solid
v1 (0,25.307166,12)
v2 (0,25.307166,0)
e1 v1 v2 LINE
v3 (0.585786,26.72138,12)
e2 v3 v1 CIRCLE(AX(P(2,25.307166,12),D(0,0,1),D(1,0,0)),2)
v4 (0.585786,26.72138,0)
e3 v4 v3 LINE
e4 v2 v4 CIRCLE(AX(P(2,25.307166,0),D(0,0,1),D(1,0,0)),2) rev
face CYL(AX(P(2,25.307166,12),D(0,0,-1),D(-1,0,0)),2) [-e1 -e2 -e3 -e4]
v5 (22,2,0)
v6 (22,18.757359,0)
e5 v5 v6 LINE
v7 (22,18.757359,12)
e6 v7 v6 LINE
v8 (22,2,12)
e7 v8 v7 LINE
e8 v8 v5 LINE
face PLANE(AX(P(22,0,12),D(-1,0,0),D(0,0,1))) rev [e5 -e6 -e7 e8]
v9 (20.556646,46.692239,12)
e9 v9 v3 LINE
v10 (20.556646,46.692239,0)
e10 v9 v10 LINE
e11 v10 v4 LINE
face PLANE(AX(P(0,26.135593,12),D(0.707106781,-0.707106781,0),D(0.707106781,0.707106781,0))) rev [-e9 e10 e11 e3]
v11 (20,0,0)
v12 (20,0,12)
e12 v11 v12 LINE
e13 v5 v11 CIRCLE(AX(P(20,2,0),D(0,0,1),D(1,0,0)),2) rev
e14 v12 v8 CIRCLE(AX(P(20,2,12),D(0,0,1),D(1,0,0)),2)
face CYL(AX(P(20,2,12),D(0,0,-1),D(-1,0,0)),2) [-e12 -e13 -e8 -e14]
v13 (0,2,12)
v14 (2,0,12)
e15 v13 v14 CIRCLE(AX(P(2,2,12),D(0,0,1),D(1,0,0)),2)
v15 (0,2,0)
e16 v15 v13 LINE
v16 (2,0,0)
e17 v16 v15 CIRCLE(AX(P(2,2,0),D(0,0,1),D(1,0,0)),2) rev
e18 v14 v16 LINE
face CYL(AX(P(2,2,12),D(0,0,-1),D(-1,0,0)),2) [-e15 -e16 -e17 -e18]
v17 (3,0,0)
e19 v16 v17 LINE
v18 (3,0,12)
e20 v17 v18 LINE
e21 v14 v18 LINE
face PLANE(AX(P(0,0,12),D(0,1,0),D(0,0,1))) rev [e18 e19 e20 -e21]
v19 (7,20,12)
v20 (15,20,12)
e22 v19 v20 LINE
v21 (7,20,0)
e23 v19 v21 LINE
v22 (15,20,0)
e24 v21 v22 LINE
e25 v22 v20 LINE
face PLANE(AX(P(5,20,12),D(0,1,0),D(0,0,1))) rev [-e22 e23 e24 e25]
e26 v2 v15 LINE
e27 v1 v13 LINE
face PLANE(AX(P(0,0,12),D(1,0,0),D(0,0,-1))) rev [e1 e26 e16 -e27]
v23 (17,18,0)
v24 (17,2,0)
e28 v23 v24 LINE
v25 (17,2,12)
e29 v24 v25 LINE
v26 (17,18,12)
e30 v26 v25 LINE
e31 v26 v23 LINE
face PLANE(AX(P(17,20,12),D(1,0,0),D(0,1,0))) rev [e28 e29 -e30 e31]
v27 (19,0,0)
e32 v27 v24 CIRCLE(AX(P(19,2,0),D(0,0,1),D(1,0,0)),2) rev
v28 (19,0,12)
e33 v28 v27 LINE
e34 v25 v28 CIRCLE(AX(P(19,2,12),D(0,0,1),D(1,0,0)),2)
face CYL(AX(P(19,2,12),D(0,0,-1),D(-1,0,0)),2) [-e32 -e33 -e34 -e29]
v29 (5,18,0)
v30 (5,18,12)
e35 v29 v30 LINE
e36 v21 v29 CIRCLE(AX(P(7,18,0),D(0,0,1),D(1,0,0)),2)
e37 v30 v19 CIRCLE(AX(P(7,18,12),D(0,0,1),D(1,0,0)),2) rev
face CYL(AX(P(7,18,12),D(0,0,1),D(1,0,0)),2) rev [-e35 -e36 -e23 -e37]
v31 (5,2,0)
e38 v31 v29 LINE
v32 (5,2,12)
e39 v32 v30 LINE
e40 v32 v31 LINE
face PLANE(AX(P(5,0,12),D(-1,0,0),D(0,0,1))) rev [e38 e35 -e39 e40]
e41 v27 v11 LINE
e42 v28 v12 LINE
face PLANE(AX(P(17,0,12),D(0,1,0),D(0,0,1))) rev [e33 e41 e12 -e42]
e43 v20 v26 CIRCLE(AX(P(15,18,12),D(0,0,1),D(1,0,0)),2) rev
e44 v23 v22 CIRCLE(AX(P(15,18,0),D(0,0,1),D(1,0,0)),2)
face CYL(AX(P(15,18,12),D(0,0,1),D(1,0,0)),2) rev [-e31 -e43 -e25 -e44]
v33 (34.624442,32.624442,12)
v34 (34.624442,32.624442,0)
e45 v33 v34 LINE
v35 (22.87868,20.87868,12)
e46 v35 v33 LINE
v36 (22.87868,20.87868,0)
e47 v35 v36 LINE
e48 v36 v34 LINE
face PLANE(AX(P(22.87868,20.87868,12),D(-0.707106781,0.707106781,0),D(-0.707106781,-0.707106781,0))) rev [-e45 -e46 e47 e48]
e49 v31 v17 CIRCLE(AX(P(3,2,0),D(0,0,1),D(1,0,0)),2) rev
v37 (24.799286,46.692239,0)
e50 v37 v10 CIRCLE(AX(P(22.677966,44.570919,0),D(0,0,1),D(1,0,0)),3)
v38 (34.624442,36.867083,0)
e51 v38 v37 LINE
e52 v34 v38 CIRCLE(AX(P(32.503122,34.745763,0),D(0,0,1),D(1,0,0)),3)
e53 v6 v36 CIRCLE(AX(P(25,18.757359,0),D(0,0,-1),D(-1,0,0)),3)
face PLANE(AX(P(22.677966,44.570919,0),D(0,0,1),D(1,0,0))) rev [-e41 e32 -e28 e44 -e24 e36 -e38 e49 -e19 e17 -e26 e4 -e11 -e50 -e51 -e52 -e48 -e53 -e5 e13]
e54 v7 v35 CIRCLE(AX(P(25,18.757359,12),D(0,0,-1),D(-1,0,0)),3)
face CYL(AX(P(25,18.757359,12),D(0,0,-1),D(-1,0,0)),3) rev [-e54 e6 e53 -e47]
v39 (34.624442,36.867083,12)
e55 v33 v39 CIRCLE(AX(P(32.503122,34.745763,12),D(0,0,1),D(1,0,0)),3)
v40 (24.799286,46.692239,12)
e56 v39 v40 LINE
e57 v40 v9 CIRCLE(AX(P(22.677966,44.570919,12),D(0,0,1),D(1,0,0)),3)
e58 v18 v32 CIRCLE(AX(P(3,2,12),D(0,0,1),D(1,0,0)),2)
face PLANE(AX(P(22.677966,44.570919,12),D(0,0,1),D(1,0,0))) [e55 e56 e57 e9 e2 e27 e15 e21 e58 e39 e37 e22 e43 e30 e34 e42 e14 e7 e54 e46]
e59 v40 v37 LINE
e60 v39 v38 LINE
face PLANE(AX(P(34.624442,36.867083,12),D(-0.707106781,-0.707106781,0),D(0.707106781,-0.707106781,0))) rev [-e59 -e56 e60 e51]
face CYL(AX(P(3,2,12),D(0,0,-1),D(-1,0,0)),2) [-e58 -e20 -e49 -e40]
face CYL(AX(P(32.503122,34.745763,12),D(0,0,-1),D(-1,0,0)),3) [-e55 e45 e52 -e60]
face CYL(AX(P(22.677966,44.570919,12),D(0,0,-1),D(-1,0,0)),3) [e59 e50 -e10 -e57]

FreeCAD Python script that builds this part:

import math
import FreeCAD as App
import Part
import Sketcher
Q = App.Units.Quantity


def edges_at(feature, points):
    """Names of the edges that pass closest to the given points."""
    edges = feature.Shape.Edges
    near = lambda p: min(range(len(edges)), key=lambda i: edges[i].distToShape(Part.Vertex(*p))[0])
    return sorted({f"Edge{near(p) + 1}" for p in points})

doc = App.newDocument("Part")
body = doc.addObject("PartDesign::Body", "Body")

sketch1 = body.newObject("Sketcher::SketchObject", "Sketch")
sketch1.AttachmentSupport = (doc.getObject("XY_Plane"), [""])
sketch1.MapMode = "FlatFace"
sketch1.addGeometry([
    Part.LineSegment(App.Vector(0, 0, 0), App.Vector(5, 0, 0)),
    Part.LineSegment(App.Vector(5, 0, 0), App.Vector(5, 20, 0)),
    Part.LineSegment(App.Vector(5, 20, 0), App.Vector(17, 20, 0)),
    Part.LineSegment(App.Vector(17, 20, 0), App.Vector(17, 0, 0)),
    Part.LineSegment(App.Vector(17, 0, 0), App.Vector(22, 0, 0)),
    Part.LineSegment(App.Vector(22, 0, 0), App.Vector(22, 18.8, 0)),
    Part.ArcOfCircle(Part.Circle(App.Vector(25, 18.8, 0), App.Vector(0, 0, 1), 3), math.radians(135), math.radians(180)),
    Part.LineSegment(App.Vector(22.9, 20.9, 0), App.Vector(34.6, 32.6, 0)),
    Part.ArcOfCircle(Part.Circle(App.Vector(32.5, 34.7, 0), App.Vector(0, 0, 1), 3), math.radians(-45), math.radians(45)),
    Part.LineSegment(App.Vector(34.6, 36.9, 0), App.Vector(24.8, 46.7, 0)),
    Part.ArcOfCircle(Part.Circle(App.Vector(22.7, 44.6, 0), App.Vector(0, 0, 1), 3), math.radians(45), math.radians(135)),
    Part.LineSegment(App.Vector(20.6, 46.7, 0), App.Vector(0, 26.1, 0)),
    Part.LineSegment(App.Vector(0, 26.1, 0), App.Vector(0, 0, 0)),
], False)
sketch1.addConstraint([
    Sketcher.Constraint("Coincident", 0, 2, 1, 1),
    Sketcher.Constraint("Coincident", 1, 2, 2, 1),
    Sketcher.Constraint("Coincident", 2, 2, 3, 1),
    Sketcher.Constraint("Coincident", 3, 2, 4, 1),
    Sketcher.Constraint("Coincident", 4, 2, 5, 1),
    Sketcher.Constraint("Tangent", 5, 2, 6, 2),
    Sketcher.Constraint("Tangent", 6, 1, 7, 1),
    Sketcher.Constraint("Tangent", 7, 2, 8, 1),
    Sketcher.Constraint("Tangent", 8, 2, 9, 1),
    Sketcher.Constraint("Tangent", 9, 2, 10, 1),
    Sketcher.Constraint("Tangent", 10, 2, 11, 1),
    Sketcher.Constraint("Coincident", 11, 2, 12, 1),
    Sketcher.Constraint("Coincident", 12, 2, 0, 1),
    Sketcher.Constraint("Horizontal", 0),
    Sketcher.Constraint("Vertical", 1),
    Sketcher.Constraint("Horizontal", 2),
    Sketcher.Constraint("Vertical", 3),
    Sketcher.Constraint("Horizontal", 4),
    Sketcher.Constraint("Vertical", 5),
    Sketcher.Constraint("Vertical", 12),
    Sketcher.Constraint("Coincident", 12, 2, -1, 1),
    Sketcher.Constraint("Equal", 6, 8),
    Sketcher.Constraint("Equal", 8, 10),
    Sketcher.Constraint("PointOnObject", 3, 2, -1),
    Sketcher.Constraint("Perpendicular", 7, 9),
    Sketcher.Constraint("Perpendicular", 9, 11),
    Sketcher.Constraint("Horizontal", 9, 2, 10, 2),
    Sketcher.Constraint("Equal", 0, 4),
    Sketcher.Constraint("Radius", 6, Q("3 mm")),
    Sketcher.Constraint("DistanceX", 0, 1, 0, 2, Q("5 mm")),
    Sketcher.Constraint("DistanceX", 2, 1, 2, 2, Q("12 mm")),
    Sketcher.Constraint("DistanceY", 1, 1, 1, 2, Q("20 mm")),
    Sketcher.Constraint("DistanceY", 5, 1, 5, 2, Q("18.757359 mm")),
    Sketcher.Constraint("Distance", 9, Q("13.894869 mm")),
    Sketcher.Constraint("DistanceY", -1, 1, 10, 3, Q("44.570919 mm")),
])
pad1 = body.newObject("PartDesign::Pad", "Pad")
pad1.Profile = sketch1
pad1.Length = 12
doc.recompute()

fillet = body.newObject("PartDesign::Fillet", "Fillet")
fillet.Base = (pad1, edges_at(pad1, [
    (0, 26.136, 6),
    (22, 0, 6),
    (17, 0, 6),
    (17, 20, 6),
    (5, 20, 6),
    (5, 0, 6),
    (0, 0, 6),
]))
fillet.Radius = 2

doc.recompute()
